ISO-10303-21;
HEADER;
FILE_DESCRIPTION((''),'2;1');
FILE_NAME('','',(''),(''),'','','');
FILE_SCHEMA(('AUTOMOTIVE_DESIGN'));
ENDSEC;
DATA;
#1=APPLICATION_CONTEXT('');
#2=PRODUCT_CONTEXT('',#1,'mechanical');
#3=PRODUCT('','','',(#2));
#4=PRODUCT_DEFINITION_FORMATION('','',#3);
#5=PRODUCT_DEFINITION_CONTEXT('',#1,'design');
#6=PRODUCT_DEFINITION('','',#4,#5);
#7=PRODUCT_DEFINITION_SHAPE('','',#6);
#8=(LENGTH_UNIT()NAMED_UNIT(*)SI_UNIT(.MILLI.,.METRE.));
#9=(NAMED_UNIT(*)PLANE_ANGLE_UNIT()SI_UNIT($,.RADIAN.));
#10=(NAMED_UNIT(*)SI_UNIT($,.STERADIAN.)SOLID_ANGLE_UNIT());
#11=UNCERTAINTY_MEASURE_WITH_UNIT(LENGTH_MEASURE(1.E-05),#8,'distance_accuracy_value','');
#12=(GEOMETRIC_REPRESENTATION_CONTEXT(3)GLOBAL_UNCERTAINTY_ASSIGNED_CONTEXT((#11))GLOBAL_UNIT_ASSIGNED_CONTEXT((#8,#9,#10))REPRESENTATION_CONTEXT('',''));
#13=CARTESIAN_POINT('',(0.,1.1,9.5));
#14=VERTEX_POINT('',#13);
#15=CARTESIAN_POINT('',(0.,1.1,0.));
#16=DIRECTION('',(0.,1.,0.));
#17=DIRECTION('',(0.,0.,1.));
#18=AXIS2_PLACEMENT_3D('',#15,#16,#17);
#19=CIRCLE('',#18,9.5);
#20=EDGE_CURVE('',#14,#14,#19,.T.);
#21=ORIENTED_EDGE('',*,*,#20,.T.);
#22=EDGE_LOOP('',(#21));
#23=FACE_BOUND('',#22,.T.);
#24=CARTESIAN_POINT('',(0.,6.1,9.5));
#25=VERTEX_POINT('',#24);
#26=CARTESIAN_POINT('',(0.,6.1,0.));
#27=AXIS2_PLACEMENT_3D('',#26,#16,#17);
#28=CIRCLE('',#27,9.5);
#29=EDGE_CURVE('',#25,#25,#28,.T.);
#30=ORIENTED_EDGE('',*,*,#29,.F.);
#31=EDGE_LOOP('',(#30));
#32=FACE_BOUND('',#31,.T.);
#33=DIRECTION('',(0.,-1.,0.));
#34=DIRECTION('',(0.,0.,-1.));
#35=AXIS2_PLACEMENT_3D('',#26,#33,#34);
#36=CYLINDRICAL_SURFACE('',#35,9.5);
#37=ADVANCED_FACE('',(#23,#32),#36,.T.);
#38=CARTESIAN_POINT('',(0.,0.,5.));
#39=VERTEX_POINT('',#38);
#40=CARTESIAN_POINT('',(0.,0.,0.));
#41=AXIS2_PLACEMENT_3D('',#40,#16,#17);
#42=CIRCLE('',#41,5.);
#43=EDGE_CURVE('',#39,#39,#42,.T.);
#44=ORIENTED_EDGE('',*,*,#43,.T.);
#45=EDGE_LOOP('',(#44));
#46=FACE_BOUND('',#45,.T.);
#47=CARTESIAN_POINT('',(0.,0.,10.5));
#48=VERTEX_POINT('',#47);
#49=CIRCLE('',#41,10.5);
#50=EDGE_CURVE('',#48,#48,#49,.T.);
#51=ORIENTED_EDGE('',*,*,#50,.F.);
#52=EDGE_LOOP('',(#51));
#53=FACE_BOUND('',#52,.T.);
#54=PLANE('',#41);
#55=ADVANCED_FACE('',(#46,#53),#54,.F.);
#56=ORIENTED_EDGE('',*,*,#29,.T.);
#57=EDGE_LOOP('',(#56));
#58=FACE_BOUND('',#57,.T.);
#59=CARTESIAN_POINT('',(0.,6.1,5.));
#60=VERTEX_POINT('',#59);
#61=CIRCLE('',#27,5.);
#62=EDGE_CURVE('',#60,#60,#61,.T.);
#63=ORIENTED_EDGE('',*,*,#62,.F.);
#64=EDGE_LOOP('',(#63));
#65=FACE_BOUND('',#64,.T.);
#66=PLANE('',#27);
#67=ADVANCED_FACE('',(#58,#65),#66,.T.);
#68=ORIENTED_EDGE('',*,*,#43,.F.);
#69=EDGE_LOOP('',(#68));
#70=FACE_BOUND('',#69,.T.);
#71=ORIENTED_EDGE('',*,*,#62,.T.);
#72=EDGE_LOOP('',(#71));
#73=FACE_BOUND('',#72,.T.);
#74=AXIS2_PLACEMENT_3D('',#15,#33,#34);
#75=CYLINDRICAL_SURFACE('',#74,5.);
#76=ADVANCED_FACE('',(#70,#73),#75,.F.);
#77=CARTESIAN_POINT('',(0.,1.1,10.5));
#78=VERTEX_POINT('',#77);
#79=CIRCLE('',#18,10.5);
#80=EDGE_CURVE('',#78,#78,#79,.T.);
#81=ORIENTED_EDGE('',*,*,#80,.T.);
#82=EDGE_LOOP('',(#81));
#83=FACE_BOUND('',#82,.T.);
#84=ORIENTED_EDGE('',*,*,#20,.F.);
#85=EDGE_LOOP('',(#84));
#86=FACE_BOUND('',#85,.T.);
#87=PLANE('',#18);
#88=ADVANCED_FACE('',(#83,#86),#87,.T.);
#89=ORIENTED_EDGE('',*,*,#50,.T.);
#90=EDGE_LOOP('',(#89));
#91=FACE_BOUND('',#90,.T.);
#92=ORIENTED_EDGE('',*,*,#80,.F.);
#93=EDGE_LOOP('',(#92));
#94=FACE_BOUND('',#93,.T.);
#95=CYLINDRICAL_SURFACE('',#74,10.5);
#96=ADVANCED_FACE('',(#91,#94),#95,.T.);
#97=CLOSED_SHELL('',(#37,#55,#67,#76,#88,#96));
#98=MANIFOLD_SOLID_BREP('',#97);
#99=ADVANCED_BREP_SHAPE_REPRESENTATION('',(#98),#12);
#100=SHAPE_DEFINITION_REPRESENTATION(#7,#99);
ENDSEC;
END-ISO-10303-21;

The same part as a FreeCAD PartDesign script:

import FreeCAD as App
import Part
import Sketcher

V = App.Vector
Q = App.Units.Quantity

doc = App.newDocument("Part")
params = doc.addObject("Spreadsheet::Sheet", "Params")
for row, (alias, value) in enumerate([
    ("sketch1_diameter", "21 mm"),
    ("sketch1_diameter2", "10 mm"),
    ("pad1_length", "1.1 mm"),
    ("sketch2_diameter", "19 mm"),
    ("sketch2_diameter2", "10 mm"),
    ("pad2_length", "5 mm"),
], start=1):
    params.set(f"A{row}", alias)
    params.set(f"B{row}", "=" + value)
    params.setAlias(f"B{row}", alias)

body = doc.addObject("PartDesign::Body", "Body")

sketch1 = body.newObject("Sketcher::SketchObject", "Sketch")
sketch1.AttachmentSupport = (doc.getObject("XZ_Plane"), [""])
sketch1.MapMode = "FlatFace"
sketch1.addGeometry([
    Part.Circle(V(0, 0, 0), V(0, 0, 1), 10),
    Part.Circle(V(0, 0, 0), V(0, 0, 1), 5),
], False)
sketch1.addConstraint([
    Sketcher.Constraint("Coincident", 0, 3, -1, 1),
    Sketcher.Constraint("Coincident", 1, 3, -1, 1),
    Sketcher.Constraint("Diameter", 0, Q("21 mm")),
    Sketcher.Constraint("Diameter", 1, Q("10 mm")),
])
sketch1.setExpression("Constraints[2]", "Params.sketch1_diameter")
sketch1.setExpression("Constraints[3]", "Params.sketch1_diameter2")
pad1 = body.newObject("PartDesign::Pad", "Pad")
pad1.Profile = sketch1
pad1.setExpression("Length", "Params.pad1_length")
pad1.Reversed = True

sketch2 = body.newObject("Sketcher::SketchObject", "Sketch001")
sketch2.AttachmentSupport = (doc.getObject("XZ_Plane"), [""])
sketch2.MapMode = "FlatFace"
sketch2.AttachmentOffset = App.Placement(V(0, 0, -1.1), App.Rotation())
sketch2.addGeometry([
    Part.Circle(V(0, 0, 0), V(0, 0, 1), 10),
    Part.Circle(V(0, 0, 0), V(0, 0, 1), 5),
], False)
sketch2.addConstraint([
    Sketcher.Constraint("Coincident", 0, 3, -1, 1),
    Sketcher.Constraint("Coincident", 1, 3, -1, 1),
    Sketcher.Constraint("Diameter", 0, Q("19 mm")),
    Sketcher.Constraint("Diameter", 1, Q("10 mm")),
])
sketch2.setExpression("Constraints[2]", "Params.sketch2_diameter")
sketch2.setExpression("Constraints[3]", "Params.sketch2_diameter2")
pad2 = body.newObject("PartDesign::Pad", "Pad001")
pad2.Profile = sketch2
pad2.setExpression("Length", "Params.pad2_length")
pad2.Reversed = True

doc.recompute()
